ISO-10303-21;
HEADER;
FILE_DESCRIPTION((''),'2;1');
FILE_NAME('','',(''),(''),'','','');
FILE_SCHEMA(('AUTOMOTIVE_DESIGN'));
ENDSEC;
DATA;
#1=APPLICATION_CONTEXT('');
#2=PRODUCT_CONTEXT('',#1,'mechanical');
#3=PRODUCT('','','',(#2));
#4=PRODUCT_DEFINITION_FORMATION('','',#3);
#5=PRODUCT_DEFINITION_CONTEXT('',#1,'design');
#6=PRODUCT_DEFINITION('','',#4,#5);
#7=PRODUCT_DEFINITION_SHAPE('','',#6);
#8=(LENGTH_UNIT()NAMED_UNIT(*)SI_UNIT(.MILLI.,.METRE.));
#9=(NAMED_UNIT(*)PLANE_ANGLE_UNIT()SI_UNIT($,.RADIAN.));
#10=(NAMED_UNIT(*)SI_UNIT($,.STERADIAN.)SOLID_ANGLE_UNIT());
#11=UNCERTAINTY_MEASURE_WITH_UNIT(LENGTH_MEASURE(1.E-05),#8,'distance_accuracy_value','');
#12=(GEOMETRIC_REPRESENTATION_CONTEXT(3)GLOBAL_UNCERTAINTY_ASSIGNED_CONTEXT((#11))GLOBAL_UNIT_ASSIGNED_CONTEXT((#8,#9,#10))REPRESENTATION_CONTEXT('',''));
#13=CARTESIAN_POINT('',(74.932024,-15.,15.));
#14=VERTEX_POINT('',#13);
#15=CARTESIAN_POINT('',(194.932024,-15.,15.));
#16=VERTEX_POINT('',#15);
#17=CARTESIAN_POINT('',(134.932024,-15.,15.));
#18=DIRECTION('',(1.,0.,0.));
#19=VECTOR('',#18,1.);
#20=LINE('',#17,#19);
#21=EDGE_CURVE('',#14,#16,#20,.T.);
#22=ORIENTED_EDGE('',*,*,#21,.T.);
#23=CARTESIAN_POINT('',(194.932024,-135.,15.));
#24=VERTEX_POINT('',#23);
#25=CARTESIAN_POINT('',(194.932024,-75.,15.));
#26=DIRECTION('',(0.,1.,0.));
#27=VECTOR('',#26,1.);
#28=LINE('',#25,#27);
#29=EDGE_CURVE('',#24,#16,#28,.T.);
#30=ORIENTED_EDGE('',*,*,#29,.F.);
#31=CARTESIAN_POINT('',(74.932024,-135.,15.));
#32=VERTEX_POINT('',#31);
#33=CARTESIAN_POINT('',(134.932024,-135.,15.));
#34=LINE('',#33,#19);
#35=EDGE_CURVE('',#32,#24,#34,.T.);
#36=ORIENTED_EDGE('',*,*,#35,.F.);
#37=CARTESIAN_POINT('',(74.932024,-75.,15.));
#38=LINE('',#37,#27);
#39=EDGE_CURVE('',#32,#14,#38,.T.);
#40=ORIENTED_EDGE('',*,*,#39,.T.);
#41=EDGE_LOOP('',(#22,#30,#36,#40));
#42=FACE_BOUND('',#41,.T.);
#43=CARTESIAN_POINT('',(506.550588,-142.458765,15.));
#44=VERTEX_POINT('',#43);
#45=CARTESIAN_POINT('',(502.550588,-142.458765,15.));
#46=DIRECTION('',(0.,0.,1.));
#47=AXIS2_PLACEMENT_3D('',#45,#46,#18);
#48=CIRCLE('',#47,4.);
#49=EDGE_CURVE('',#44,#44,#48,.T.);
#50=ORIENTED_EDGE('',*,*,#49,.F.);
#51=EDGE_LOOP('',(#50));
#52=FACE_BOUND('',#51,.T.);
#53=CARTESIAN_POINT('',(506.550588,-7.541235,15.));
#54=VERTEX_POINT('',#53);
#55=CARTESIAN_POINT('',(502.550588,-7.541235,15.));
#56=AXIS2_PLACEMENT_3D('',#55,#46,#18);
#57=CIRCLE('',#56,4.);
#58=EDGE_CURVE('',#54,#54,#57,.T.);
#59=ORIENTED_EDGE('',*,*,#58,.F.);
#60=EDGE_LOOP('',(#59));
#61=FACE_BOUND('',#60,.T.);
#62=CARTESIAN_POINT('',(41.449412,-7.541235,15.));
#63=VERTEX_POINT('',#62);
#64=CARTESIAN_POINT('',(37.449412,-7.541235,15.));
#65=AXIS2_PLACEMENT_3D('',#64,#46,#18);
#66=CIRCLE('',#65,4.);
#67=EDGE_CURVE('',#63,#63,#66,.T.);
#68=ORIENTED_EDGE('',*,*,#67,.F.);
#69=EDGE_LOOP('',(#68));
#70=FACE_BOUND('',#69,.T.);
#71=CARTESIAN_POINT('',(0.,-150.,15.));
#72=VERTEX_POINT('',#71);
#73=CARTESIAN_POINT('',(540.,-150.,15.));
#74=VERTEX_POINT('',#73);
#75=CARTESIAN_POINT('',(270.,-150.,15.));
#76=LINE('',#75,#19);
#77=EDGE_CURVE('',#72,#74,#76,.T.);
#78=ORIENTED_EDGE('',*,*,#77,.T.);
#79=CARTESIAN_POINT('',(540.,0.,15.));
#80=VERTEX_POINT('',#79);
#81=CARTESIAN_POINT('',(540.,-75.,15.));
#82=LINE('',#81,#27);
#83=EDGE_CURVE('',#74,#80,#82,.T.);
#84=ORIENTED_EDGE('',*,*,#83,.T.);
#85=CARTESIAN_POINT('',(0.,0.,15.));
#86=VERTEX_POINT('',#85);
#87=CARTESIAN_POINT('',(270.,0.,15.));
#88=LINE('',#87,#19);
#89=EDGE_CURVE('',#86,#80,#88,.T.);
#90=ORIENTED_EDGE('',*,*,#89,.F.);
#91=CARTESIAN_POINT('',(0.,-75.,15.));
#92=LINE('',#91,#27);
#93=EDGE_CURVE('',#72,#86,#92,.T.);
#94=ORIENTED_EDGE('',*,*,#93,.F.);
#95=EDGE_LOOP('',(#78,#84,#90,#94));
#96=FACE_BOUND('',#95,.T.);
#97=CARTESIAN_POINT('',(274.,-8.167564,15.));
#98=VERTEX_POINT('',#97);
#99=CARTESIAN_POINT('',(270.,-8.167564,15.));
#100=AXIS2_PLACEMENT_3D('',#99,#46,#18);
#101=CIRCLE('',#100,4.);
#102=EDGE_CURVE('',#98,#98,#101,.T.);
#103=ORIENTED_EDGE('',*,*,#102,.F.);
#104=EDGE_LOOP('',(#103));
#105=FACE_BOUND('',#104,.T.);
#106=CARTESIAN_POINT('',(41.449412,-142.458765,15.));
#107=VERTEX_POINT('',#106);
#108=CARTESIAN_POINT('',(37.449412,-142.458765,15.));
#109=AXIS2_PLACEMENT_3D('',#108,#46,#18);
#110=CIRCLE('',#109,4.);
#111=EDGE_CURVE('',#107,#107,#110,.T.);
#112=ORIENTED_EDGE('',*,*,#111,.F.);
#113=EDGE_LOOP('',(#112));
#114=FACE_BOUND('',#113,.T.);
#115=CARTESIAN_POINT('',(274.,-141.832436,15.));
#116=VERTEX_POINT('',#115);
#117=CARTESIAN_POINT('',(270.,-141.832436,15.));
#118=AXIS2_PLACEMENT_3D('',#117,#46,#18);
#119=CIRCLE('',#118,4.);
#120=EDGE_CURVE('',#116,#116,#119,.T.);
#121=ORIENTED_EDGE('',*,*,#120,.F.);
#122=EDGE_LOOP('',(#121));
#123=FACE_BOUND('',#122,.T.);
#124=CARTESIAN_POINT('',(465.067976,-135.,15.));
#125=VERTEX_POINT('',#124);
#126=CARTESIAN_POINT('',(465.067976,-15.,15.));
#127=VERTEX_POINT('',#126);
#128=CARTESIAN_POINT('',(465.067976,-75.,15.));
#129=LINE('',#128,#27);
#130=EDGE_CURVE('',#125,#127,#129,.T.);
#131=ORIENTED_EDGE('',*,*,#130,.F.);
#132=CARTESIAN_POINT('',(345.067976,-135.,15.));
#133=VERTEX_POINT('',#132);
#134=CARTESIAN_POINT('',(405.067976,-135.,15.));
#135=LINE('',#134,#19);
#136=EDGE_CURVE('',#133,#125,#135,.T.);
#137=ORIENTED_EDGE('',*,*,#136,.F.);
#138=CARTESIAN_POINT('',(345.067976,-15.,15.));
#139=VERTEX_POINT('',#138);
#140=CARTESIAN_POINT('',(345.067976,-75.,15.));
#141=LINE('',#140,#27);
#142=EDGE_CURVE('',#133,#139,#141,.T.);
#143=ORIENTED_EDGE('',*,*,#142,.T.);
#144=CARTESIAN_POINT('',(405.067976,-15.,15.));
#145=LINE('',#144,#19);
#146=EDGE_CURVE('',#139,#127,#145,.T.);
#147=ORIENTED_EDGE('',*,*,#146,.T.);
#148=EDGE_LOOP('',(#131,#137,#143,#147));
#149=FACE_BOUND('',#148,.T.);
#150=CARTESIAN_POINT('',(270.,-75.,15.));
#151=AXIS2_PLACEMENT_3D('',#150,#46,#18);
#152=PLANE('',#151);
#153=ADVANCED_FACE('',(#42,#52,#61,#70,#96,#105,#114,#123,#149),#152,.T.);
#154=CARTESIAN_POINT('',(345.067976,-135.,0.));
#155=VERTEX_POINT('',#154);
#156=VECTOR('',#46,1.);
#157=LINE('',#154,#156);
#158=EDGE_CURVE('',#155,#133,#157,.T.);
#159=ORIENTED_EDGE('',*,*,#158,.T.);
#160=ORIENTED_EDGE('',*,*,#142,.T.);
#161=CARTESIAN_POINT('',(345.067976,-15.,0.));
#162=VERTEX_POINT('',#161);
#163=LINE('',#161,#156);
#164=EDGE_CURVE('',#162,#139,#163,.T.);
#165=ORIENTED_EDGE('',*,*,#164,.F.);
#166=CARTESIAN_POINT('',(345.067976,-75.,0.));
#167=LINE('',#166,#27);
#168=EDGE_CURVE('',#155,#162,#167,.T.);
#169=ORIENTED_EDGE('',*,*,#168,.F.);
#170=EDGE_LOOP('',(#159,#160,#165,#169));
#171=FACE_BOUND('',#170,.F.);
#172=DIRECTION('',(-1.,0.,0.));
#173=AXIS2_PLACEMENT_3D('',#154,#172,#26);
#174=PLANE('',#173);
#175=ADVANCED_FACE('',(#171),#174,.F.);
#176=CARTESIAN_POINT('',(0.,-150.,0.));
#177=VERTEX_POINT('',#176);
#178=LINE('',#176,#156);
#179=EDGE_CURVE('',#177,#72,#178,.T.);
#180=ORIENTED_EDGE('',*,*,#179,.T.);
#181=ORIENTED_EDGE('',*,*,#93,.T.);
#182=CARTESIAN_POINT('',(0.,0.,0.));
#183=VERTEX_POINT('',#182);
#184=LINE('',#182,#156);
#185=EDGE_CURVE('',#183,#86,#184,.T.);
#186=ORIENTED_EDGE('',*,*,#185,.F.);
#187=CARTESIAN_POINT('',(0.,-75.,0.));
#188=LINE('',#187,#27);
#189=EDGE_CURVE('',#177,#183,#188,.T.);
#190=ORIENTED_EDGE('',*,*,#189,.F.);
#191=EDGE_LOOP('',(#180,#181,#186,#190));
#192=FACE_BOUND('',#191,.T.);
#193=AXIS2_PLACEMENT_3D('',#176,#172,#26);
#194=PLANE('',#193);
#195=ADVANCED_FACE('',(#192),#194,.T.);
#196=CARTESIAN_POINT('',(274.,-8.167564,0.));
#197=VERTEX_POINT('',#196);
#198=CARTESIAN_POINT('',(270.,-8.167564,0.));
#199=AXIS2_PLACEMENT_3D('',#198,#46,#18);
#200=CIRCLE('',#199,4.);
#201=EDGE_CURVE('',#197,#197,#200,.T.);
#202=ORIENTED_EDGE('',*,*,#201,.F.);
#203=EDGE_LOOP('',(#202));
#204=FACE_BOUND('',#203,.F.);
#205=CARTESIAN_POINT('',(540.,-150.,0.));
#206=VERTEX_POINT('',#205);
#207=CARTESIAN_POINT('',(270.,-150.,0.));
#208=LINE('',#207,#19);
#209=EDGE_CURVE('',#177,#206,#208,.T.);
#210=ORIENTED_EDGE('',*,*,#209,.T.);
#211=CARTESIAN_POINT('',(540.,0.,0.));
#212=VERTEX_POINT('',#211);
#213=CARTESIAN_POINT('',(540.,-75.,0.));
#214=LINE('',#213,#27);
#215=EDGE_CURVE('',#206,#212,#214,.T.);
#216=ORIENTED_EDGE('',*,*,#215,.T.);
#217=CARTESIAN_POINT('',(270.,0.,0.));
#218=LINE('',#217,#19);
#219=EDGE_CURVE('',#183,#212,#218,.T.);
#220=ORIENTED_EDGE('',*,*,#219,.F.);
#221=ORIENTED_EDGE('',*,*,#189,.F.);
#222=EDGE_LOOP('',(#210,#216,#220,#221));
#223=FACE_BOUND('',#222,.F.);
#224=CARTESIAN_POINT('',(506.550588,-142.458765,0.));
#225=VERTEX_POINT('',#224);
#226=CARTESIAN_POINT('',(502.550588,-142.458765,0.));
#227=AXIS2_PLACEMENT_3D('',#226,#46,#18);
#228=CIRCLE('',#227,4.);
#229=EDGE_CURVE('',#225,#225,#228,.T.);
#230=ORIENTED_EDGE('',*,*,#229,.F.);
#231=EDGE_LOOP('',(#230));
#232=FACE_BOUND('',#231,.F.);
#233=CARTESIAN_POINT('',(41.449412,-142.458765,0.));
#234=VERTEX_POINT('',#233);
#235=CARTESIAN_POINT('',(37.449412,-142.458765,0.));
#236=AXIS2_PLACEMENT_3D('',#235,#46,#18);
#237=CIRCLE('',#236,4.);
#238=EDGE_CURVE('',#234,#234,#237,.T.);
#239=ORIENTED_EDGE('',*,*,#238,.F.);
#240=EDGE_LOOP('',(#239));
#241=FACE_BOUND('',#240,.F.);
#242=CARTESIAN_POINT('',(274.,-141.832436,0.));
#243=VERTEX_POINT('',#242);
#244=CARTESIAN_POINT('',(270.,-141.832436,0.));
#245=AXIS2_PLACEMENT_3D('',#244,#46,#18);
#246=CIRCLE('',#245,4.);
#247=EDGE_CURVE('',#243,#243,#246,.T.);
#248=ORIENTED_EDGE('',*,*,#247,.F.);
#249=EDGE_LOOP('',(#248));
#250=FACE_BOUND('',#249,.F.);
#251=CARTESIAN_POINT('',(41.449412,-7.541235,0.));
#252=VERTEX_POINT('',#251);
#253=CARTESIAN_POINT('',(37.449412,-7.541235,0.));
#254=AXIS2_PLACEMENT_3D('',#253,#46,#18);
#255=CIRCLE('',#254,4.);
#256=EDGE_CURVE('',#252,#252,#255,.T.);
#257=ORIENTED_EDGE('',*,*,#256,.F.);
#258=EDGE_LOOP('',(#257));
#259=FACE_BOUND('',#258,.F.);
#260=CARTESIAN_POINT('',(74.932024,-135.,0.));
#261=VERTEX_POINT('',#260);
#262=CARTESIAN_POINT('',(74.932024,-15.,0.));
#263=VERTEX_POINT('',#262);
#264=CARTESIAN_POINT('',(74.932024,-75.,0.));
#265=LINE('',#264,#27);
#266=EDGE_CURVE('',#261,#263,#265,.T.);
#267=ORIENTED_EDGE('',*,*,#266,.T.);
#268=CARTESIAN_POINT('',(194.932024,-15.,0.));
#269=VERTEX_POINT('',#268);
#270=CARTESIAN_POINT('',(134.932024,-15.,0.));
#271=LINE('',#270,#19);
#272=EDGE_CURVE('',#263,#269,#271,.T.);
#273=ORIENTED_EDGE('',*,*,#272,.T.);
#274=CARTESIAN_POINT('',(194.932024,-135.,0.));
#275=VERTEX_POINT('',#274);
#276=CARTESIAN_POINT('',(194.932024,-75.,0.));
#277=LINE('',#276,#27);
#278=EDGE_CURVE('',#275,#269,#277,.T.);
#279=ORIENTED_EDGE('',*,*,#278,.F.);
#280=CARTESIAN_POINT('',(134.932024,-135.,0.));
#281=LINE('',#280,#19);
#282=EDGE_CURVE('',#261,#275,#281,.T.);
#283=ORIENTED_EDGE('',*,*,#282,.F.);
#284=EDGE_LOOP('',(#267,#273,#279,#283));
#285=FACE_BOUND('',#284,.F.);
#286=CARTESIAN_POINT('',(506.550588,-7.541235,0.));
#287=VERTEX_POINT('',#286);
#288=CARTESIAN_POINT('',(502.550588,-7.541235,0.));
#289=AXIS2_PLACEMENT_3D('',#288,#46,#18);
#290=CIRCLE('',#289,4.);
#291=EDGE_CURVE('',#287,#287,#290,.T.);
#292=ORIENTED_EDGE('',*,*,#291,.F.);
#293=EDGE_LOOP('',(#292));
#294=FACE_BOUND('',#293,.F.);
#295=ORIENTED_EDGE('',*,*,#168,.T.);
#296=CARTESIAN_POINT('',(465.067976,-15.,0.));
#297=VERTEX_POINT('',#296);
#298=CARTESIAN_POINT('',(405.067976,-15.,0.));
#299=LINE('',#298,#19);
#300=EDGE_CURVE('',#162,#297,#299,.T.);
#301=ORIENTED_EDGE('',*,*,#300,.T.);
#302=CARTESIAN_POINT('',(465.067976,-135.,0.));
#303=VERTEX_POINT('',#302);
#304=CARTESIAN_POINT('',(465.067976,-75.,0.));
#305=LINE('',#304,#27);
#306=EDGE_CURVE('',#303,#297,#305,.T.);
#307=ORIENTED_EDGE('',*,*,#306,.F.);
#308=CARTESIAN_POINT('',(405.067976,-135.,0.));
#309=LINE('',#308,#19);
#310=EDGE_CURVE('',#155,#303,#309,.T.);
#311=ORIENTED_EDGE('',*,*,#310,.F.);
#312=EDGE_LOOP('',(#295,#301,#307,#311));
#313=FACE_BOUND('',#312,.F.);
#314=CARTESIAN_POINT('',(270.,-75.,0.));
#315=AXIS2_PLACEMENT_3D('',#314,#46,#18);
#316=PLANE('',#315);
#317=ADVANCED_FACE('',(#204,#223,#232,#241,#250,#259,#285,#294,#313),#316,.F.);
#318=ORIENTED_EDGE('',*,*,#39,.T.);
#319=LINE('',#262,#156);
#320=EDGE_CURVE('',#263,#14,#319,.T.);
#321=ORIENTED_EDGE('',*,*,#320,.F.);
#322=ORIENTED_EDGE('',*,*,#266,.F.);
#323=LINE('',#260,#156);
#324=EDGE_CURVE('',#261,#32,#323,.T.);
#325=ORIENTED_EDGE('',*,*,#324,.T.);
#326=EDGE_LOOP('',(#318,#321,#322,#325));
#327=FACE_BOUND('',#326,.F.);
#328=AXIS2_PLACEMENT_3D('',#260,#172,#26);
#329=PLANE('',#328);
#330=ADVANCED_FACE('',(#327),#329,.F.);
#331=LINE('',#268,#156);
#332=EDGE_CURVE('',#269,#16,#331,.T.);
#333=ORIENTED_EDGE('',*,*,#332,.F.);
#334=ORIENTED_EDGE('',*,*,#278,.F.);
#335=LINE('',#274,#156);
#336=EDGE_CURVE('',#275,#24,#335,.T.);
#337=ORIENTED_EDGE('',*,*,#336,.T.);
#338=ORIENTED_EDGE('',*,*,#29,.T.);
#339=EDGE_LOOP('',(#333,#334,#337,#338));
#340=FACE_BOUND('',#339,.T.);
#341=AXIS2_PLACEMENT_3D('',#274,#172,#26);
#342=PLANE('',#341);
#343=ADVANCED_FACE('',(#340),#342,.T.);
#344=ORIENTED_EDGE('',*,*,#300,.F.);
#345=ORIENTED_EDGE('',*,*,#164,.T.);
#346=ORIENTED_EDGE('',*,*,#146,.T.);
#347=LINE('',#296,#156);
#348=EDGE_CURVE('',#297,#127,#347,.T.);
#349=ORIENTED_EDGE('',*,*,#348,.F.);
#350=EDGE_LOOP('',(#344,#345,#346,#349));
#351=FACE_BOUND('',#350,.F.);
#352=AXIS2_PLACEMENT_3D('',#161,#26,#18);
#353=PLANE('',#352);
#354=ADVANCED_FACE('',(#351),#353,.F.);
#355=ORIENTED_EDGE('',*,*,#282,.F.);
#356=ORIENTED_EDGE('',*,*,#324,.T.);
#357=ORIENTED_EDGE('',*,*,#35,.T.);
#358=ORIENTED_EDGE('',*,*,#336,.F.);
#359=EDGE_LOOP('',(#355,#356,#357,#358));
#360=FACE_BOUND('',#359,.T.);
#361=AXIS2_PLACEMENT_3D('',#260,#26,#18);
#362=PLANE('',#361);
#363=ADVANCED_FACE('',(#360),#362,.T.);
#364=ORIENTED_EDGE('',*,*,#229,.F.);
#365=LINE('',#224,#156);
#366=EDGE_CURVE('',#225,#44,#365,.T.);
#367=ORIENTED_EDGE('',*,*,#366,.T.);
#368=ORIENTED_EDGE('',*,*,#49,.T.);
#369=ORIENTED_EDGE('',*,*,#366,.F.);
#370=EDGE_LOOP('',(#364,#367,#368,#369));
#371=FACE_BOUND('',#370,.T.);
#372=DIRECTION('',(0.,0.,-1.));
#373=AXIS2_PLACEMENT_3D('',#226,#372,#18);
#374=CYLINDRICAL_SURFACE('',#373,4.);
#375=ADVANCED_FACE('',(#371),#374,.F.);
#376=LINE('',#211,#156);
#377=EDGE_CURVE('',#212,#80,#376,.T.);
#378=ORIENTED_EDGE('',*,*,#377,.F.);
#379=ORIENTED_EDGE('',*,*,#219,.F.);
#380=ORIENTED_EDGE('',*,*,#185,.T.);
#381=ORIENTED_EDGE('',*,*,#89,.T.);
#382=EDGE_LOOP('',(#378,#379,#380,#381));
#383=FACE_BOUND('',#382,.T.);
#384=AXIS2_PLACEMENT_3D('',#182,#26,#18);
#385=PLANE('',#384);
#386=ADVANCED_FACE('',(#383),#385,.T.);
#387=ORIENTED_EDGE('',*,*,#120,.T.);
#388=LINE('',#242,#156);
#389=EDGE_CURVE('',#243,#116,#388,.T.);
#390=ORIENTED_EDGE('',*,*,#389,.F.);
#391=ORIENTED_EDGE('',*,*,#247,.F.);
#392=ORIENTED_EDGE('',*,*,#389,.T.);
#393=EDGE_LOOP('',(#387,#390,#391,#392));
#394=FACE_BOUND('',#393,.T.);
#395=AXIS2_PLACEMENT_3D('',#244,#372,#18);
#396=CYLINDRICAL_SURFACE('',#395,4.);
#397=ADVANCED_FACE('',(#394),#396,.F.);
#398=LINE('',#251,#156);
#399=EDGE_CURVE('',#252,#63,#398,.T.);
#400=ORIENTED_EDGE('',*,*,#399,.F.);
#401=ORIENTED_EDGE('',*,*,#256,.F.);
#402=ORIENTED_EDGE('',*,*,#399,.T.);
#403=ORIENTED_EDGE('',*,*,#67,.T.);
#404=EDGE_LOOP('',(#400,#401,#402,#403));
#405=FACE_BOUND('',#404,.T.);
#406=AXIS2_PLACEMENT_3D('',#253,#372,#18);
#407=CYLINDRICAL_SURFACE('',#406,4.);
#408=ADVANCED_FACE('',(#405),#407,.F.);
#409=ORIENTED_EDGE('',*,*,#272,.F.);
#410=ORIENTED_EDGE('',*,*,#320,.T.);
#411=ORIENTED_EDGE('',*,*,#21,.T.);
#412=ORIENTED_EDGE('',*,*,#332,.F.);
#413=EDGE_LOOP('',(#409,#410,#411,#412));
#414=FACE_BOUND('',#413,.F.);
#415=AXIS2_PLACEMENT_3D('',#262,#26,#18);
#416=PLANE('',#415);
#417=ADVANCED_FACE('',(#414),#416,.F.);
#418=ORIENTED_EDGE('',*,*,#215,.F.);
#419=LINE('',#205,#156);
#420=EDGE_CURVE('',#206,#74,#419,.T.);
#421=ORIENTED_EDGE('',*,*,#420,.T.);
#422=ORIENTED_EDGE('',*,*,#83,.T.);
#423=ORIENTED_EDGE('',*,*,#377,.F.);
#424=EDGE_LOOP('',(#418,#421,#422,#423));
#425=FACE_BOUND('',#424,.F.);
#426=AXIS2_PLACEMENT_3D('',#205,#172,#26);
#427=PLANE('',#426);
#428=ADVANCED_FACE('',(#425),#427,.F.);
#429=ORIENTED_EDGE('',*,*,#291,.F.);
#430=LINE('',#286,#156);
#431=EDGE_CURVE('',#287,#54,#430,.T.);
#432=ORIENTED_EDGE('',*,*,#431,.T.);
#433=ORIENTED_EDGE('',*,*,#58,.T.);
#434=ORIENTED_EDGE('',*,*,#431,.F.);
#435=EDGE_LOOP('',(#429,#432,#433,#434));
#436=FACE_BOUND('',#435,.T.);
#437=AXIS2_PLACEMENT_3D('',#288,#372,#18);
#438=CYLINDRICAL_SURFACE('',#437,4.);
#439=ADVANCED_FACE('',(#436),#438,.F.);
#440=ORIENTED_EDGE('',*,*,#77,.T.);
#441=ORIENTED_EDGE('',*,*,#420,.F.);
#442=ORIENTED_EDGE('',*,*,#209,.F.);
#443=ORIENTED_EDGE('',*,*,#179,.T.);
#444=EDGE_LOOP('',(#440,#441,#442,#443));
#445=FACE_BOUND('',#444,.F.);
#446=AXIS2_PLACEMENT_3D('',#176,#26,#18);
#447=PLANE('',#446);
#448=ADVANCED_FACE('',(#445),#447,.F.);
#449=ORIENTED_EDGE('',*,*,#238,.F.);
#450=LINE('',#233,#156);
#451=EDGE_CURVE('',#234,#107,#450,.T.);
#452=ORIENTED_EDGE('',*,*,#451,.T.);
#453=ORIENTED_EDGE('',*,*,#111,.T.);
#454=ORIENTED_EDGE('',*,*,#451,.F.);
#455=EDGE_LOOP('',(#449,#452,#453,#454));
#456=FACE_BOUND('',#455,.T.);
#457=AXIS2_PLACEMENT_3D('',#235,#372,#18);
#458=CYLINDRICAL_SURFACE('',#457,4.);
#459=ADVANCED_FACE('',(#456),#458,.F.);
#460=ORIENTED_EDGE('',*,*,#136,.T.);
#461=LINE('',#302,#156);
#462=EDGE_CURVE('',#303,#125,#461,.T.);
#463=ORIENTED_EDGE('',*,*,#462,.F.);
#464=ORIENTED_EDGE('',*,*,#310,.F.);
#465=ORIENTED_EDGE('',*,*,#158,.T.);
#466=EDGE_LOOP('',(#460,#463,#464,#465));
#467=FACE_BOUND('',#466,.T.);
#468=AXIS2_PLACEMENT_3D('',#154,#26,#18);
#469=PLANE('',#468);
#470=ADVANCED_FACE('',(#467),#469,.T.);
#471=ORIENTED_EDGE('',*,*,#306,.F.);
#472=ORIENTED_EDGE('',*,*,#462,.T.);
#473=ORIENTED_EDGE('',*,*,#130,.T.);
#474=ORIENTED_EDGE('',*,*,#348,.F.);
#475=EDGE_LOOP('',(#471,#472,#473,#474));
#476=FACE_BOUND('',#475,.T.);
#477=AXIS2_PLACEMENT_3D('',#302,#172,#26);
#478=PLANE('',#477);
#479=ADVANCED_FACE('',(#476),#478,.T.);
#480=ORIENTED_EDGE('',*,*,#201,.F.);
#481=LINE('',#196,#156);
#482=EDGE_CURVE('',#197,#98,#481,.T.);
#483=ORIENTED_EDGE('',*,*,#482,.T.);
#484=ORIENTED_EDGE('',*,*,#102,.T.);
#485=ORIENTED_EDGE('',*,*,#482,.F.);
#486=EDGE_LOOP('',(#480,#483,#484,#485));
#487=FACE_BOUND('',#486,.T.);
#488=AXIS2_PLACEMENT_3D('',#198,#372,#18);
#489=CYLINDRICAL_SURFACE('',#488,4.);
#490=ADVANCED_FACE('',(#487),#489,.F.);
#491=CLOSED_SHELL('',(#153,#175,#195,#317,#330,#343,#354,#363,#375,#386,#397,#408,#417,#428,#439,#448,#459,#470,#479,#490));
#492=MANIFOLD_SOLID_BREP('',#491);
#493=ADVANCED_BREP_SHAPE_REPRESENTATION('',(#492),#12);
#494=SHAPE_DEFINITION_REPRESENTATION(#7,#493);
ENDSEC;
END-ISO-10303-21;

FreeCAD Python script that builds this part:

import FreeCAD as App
import Part
import Sketcher
Q = App.Units.Quantity


def add_polygon(sketch, points):
    """Adds a closed chain of lines whose ends are joined by coincident constraints."""
    first, n = sketch.GeometryCount, len(points)
    for a, b in zip(points, points[1:] + points[:1]):
        sketch.addGeometry(Part.LineSegment(App.Vector(*a, 0), App.Vector(*b, 0)), False)
    for i in range(n):
        sketch.addConstraint(Sketcher.Constraint("Coincident", first + i, 2, first + (i + 1) % n, 1))

doc = App.newDocument("Part")
body = doc.addObject("PartDesign::Body", "Body")

# Sketch on XY plane
sketch1 = body.newObject("Sketcher::SketchObject", "Sketch")
sketch1.AttachmentSupport = (doc.getObject("XY_Plane"), [""])
sketch1.MapMode = "FlatFace"
add_polygon(sketch1, [(0, 0), (0, -150), (540, -150), (540, 0)])  # lines 0-3
sketch1.addGeometry(Part.Circle(App.Vector(37.449412, -142.458765, 0), App.Vector(0, 0, 1), 4), False)  # 4
sketch1.addGeometry(Part.Circle(App.Vector(270, -141.832436, 0), App.Vector(0, 0, 1), 4), False)  # 5
sketch1.addGeometry(Part.Circle(App.Vector(502.550588, -142.458765, 0), App.Vector(0, 0, 1), 4), False)  # 6
add_polygon(sketch1, [(194.932024, -135), (74.932024, -135), (74.932024, -15), (194.932024, -15)])  # lines 7-10
sketch1.addGeometry(Part.Circle(App.Vector(37.449412, -7.541235, 0), App.Vector(0, 0, 1), 4), False)  # 11
add_polygon(sketch1, [(465.067976, -135), (345.067976, -135), (345.067976, -15), (465.067976, -15)])  # lines 12-15
sketch1.addGeometry(Part.Circle(App.Vector(270, -8.167564, 0), App.Vector(0, 0, 1), 4), False)  # 16
sketch1.addGeometry(Part.Circle(App.Vector(502.550588, -7.541235, 0), App.Vector(0, 0, 1), 4), False)  # 17
sketch1.addConstraint([
    Sketcher.Constraint("Vertical", 0),
    Sketcher.Constraint("Horizontal", 1),
    Sketcher.Constraint("Vertical", 2),
    Sketcher.Constraint("Horizontal", 3),
    Sketcher.Constraint("Horizontal", 7),
    Sketcher.Constraint("Vertical", 8),
    Sketcher.Constraint("Horizontal", 9),
    Sketcher.Constraint("Vertical", 10),
    Sketcher.Constraint("Horizontal", 12),
    Sketcher.Constraint("Vertical", 13),
    Sketcher.Constraint("Horizontal", 14),
    Sketcher.Constraint("Vertical", 15),
    Sketcher.Constraint("Coincident", 3, 2, -1, 1),
    Sketcher.Constraint("Equal", 4, 5),
    Sketcher.Constraint("Equal", 5, 6),
    Sketcher.Constraint("Equal", 6, 11),
    Sketcher.Constraint("Equal", 11, 16),
    Sketcher.Constraint("Equal", 16, 17),
    Sketcher.Constraint("Horizontal", 4, 3, 6, 3),
    Sketcher.Constraint("Horizontal", 11, 3, 17, 3),
    Sketcher.Constraint("Horizontal", 10, 2, 12, 2),
    Sketcher.Constraint("Horizontal", 9, 2, 13, 2),
    Sketcher.Constraint("Vertical", 4, 3, 11, 3),
    Sketcher.Constraint("Vertical", 5, 3, 16, 3),
    Sketcher.Constraint("Vertical", 6, 3, 17, 3),
    Sketcher.Constraint("Equal", 9, 12),
    Sketcher.Constraint("Equal", 14, 8),
    Sketcher.Constraint("Diameter", 4, Q("8 mm")),
    Sketcher.Constraint("DistanceX", 1, 1, 1, 2, Q("540 mm")),
    Sketcher.Constraint("DistanceX", 7, 2, 7, 1, Q("120 mm")),
    Sketcher.Constraint("DistanceY", 0, 2, 0, 1, Q("150 mm")),
    Sketcher.Constraint("DistanceX", -1, 1, 5, 3, Q("270 mm")),
    Sketcher.Constraint("DistanceY", 7, 2, -1, 1, Q("135 mm")),
    Sketcher.Constraint("DistanceY", 5, 3, 11, 3, Q("134.291201 mm")),
    Sketcher.Constraint("DistanceY", 4, 3, 16, 3, Q("134.291201 mm")),
    Sketcher.Constraint("DistanceX", -1, 1, 6, 3, Q("502.550588 mm")),
    Sketcher.Constraint("DistanceX", 4, 3, 5, 3, Q("232.550588 mm")),
    Sketcher.Constraint("DistanceY", 4, 3, 5, 3, Q("0.626329 mm")),
    Sketcher.Constraint("DistanceX", 4, 3, 7, 2, Q("37.482612 mm")),
    Sketcher.Constraint("DistanceX", 10, 2, 12, 2, Q("150.135952 mm")),
    Sketcher.Constraint("DistanceY", 4, 3, -1, 1, Q("142.458765 mm")),
])
pad1 = body.newObject("PartDesign::Pad", "Pad")
pad1.Profile = sketch1
pad1.Length = 15

doc.recompute()
